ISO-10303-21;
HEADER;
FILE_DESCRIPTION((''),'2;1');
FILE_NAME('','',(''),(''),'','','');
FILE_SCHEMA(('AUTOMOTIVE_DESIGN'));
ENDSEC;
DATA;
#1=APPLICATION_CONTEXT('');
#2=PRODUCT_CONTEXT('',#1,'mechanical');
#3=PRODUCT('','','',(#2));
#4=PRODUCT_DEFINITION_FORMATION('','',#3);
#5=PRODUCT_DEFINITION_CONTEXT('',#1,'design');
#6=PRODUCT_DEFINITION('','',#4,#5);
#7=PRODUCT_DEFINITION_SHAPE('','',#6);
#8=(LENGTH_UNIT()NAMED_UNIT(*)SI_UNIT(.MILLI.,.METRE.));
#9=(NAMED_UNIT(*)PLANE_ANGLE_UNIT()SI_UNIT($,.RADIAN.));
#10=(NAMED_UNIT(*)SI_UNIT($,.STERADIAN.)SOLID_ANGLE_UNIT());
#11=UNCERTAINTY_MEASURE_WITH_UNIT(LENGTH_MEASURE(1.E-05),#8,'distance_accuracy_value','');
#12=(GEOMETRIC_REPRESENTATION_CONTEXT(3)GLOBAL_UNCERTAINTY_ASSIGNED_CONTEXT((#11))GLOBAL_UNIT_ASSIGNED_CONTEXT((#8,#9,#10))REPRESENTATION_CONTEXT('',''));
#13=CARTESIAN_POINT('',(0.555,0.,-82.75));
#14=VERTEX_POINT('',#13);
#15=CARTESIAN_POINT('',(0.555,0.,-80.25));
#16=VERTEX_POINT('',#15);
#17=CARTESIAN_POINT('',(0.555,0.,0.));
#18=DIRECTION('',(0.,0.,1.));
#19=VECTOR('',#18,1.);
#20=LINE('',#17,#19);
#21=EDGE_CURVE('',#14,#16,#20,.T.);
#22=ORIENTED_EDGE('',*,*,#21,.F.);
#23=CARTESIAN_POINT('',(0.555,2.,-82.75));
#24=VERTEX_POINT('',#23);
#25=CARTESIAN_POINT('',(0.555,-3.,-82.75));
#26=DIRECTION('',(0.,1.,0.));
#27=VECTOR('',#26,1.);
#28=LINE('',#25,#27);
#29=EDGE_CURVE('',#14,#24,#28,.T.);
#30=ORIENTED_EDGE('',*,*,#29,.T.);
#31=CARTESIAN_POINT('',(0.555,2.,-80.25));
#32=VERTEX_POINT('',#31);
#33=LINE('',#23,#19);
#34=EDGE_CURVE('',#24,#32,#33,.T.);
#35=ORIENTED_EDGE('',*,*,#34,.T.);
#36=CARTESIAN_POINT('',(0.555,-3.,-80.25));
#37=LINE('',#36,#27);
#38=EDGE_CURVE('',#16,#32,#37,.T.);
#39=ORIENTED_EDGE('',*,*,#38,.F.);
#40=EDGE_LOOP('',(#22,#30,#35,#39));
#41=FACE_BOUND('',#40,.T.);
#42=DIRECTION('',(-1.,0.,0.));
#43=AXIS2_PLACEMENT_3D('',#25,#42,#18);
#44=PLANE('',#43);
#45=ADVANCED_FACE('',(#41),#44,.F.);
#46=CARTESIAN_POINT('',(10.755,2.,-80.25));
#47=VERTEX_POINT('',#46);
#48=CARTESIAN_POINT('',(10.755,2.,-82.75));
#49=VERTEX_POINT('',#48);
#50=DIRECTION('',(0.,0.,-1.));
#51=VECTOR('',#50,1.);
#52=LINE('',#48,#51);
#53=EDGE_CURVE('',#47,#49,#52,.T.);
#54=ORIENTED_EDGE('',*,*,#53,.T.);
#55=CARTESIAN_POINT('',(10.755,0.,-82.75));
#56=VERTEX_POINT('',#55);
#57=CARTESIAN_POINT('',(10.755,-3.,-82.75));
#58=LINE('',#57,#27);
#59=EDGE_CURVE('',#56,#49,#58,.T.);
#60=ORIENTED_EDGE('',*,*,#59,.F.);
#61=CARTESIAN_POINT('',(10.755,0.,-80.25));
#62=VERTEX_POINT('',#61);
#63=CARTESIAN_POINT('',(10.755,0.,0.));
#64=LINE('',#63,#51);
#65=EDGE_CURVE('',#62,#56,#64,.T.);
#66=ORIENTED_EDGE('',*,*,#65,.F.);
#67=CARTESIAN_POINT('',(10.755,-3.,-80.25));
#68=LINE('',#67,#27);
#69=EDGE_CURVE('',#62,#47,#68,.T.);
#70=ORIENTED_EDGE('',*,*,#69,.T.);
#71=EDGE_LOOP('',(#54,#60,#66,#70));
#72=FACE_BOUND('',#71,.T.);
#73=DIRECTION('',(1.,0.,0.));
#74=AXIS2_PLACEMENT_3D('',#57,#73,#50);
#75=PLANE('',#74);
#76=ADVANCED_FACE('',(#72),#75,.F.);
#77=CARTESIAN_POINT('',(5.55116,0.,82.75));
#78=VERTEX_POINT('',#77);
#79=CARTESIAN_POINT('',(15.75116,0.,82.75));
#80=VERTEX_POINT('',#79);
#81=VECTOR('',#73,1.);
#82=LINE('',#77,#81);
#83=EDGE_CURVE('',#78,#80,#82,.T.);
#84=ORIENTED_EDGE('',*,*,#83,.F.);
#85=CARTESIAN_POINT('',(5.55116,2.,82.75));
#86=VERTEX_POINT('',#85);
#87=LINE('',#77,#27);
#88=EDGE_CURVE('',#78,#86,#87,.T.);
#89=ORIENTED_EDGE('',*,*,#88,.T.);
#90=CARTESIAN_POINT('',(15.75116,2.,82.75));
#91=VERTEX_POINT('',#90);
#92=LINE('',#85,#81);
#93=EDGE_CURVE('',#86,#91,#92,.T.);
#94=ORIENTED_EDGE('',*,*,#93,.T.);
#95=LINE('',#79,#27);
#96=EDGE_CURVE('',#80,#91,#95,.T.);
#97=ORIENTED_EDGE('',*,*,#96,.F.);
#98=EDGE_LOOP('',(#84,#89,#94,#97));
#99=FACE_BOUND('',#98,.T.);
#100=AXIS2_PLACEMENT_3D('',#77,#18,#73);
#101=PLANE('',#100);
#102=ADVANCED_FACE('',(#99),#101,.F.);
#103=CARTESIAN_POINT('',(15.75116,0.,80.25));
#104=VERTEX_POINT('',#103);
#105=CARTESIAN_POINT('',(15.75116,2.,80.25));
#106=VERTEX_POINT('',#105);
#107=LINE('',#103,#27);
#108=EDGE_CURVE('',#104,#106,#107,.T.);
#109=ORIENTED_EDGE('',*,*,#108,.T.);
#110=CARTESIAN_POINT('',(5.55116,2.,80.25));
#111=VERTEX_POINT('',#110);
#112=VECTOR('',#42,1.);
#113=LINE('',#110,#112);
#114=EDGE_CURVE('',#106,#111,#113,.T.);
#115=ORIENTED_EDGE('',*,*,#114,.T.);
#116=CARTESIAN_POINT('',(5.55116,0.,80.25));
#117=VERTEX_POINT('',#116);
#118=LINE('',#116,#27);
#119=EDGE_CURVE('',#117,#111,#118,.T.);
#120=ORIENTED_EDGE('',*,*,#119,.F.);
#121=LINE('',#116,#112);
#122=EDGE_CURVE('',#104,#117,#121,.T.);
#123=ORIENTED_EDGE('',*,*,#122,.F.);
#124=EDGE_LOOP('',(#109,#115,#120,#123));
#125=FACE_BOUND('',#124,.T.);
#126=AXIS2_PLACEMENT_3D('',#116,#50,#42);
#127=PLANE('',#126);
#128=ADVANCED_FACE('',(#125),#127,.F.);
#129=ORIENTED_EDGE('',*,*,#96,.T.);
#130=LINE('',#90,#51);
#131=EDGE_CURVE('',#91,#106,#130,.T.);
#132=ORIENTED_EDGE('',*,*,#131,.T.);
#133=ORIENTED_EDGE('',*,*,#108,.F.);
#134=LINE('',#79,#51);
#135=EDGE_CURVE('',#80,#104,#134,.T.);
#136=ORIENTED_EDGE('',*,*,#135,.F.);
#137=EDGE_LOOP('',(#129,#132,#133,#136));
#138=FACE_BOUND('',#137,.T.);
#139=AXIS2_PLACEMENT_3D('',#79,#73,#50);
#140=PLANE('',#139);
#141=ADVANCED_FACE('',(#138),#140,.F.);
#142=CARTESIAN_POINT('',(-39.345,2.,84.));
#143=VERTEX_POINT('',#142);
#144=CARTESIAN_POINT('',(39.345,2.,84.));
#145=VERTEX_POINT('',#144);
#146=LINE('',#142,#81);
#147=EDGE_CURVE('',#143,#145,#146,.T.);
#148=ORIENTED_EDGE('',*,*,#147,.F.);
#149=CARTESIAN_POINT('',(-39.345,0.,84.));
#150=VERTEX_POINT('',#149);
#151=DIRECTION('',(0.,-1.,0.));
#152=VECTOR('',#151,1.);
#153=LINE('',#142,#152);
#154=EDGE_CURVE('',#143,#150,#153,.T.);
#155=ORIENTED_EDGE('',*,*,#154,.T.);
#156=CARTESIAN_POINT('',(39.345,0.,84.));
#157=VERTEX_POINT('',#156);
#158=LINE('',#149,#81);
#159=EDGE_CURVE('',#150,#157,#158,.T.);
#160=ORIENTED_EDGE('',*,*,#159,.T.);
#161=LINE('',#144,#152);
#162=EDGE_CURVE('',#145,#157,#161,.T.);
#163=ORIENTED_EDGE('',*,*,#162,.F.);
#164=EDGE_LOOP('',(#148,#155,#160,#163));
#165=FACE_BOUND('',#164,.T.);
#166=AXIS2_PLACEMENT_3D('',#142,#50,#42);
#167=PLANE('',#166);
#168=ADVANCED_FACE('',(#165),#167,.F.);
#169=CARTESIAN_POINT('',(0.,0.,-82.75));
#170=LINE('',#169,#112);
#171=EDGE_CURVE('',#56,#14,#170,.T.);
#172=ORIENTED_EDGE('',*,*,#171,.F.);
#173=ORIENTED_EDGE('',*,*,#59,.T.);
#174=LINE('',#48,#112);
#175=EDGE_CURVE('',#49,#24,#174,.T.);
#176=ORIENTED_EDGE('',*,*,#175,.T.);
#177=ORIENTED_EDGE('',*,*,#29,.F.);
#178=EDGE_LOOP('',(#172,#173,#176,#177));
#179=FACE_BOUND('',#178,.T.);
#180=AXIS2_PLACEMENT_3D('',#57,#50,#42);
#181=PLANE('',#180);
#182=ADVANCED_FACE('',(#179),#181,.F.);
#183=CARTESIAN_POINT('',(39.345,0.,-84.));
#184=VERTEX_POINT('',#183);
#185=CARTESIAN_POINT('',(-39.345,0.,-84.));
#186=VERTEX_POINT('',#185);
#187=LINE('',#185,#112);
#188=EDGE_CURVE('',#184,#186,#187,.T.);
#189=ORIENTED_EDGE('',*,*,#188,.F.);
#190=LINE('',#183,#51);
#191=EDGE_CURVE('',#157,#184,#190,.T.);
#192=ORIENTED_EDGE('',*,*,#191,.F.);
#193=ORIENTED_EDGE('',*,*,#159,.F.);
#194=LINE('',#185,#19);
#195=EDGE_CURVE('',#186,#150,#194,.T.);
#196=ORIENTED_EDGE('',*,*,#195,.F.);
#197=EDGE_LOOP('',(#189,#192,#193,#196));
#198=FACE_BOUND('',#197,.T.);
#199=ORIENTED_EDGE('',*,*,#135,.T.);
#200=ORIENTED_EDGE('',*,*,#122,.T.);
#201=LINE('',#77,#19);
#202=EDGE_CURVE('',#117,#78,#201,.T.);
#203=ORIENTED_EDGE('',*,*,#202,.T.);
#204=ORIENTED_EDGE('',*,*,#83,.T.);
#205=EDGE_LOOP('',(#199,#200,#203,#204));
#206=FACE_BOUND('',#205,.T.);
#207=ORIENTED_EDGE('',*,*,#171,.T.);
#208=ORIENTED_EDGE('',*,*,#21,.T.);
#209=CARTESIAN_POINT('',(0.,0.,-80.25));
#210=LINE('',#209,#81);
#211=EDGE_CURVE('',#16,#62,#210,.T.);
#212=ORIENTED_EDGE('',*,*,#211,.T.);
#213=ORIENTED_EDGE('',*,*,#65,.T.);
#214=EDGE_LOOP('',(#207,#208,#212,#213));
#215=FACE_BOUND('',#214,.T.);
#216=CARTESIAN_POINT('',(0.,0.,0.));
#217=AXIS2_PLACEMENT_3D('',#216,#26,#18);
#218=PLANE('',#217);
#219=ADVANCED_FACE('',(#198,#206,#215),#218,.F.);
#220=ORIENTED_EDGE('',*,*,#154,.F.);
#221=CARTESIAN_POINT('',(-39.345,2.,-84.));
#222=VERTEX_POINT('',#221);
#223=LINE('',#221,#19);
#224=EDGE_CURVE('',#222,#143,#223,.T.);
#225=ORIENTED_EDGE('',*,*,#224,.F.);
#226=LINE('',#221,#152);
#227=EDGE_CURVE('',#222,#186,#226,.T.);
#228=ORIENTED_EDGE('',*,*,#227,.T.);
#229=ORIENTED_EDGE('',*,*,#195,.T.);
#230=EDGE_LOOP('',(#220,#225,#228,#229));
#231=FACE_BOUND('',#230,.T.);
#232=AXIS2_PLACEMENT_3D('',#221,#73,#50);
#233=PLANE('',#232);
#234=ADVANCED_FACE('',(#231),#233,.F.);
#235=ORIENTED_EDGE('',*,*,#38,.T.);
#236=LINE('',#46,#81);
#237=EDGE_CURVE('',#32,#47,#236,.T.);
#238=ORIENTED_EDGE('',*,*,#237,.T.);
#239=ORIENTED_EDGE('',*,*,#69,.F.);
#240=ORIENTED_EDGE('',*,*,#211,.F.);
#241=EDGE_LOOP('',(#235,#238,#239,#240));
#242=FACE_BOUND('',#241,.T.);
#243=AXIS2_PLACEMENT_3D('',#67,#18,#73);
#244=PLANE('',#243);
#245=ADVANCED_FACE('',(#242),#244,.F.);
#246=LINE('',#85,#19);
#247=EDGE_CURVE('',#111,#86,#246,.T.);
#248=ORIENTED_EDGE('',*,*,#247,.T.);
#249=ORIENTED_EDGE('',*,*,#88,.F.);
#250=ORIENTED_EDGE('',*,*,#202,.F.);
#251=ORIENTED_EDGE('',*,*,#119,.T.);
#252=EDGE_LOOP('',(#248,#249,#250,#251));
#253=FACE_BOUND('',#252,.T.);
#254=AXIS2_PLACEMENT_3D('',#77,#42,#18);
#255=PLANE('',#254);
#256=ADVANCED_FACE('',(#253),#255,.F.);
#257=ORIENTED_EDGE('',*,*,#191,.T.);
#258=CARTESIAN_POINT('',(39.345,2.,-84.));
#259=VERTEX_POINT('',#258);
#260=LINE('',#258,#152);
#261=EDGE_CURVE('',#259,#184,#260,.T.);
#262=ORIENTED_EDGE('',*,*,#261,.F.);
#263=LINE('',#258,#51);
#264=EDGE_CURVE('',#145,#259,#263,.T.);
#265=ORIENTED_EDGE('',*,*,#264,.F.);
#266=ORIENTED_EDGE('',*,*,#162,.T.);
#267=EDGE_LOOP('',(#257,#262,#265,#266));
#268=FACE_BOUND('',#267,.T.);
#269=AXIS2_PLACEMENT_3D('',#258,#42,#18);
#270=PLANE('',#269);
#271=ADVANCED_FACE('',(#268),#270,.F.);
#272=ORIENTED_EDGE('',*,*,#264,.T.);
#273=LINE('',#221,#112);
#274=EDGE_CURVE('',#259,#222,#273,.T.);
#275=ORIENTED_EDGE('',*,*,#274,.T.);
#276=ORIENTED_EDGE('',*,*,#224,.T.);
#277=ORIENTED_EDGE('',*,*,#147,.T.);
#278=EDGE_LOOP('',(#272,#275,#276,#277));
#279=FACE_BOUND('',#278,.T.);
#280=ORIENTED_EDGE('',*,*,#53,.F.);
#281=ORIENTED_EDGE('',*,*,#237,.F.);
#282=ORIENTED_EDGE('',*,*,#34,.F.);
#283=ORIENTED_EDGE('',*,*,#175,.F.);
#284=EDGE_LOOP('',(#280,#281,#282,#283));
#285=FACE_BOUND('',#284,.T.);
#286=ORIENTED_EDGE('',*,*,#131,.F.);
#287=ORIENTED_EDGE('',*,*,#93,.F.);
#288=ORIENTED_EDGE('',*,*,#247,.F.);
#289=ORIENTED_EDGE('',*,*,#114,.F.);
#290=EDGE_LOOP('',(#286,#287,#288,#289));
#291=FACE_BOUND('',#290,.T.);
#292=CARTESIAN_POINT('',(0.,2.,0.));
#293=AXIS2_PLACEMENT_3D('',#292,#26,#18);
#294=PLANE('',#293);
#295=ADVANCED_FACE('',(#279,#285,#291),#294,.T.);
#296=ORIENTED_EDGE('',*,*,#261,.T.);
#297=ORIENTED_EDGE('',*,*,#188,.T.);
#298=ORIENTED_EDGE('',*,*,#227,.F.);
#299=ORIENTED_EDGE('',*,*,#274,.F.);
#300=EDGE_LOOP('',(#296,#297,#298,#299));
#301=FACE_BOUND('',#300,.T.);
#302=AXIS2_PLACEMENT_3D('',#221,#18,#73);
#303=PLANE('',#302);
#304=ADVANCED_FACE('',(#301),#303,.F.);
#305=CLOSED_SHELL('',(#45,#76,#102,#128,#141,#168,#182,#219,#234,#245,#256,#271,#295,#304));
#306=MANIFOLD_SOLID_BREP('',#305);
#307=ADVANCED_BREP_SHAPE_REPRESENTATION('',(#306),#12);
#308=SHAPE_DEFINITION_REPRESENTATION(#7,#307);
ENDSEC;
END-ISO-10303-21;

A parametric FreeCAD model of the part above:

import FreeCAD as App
import Part
import Sketcher

V = App.Vector

doc = App.newDocument("Part")
body = doc.addObject("PartDesign::Body", "Body")

sketch1 = body.newObject("Sketcher::SketchObject", "Sketch")
sketch1.AttachmentSupport = (doc.getObject("XZ_Plane"), [""])
sketch1.MapMode = "FlatFace"
sketch1.addGeometry(Part.LineSegment(V(-39, -84, 0), V(-39, 84, 0)), False)
sketch1.addGeometry(Part.LineSegment(V(-39, 84, 0), V(39, 84, 0)), False)
sketch1.addGeometry(Part.LineSegment(V(39, 84, 0), V(39, -84, 0)), False)
sketch1.addGeometry(Part.LineSegment(V(39, -84, 0), V(-39, -84, 0)), False)
sketch1.addConstraint(Sketcher.Constraint("Coincident", 0, 2, 1, 1))
sketch1.addConstraint(Sketcher.Constraint("Coincident", 1, 2, 2, 1))
sketch1.addConstraint(Sketcher.Constraint("Coincident", 2, 2, 3, 1))
sketch1.addConstraint(Sketcher.Constraint("Coincident", 3, 2, 0, 1))
sketch1.addConstraint(Sketcher.Constraint("Vertical", 0))
sketch1.addConstraint(Sketcher.Constraint("Horizontal", 1))
sketch1.addConstraint(Sketcher.Constraint("Vertical", 2))
sketch1.addConstraint(Sketcher.Constraint("Horizontal", 3))
sketch1.addConstraint(Sketcher.Constraint("Symmetric", 0, 2, 2, 2, -1, 1))
sketch1.addConstraint(Sketcher.Constraint("DistanceY", 0, 1, 0, 2, 168.0))
sketch1.addConstraint(Sketcher.Constraint("DistanceX", 1, 1, 1, 2, 78.69))
pad1 = body.newObject("PartDesign::Pad", "Pad")
pad1.Profile = sketch1
pad1.Length = 2
pad1.Reversed = True

sketch2 = body.newObject("Sketcher::SketchObject", "Sketch001")
sketch2.AttachmentSupport = (doc.getObject("XZ_Plane"), [""])
sketch2.MapMode = "FlatFace"
sketch2.AttachmentOffset = App.Placement(V(0, 0, -2), App.Rotation())
sketch2.addGeometry(Part.LineSegment(V(0.6, -82.8, 0), V(0.6, -80.2, 0)), False)
sketch2.addGeometry(Part.LineSegment(V(0.6, -80.2, 0), V(10.8, -80.2, 0)), False)
sketch2.addGeometry(Part.LineSegment(V(10.8, -80.2, 0), V(10.8, -82.8, 0)), False)
sketch2.addGeometry(Part.LineSegment(V(10.8, -82.8, 0), V(0.6, -82.8, 0)), False)
sketch2.addConstraint(Sketcher.Constraint("Coincident", 0, 2, 1, 1))
sketch2.addConstraint(Sketcher.Constraint("Coincident", 1, 2, 2, 1))
sketch2.addConstraint(Sketcher.Constraint("Coincident", 2, 2, 3, 1))
sketch2.addConstraint(Sketcher.Constraint("Coincident", 3, 2, 0, 1))
sketch2.addConstraint(Sketcher.Constraint("Vertical", 0))
sketch2.addConstraint(Sketcher.Constraint("Horizontal", 1))
sketch2.addConstraint(Sketcher.Constraint("Vertical", 2))
sketch2.addConstraint(Sketcher.Constraint("Horizontal", 3))
sketch2.addConstraint(Sketcher.Constraint("DistanceX", 1, 1, 1, 2, 10.2))
sketch2.addConstraint(Sketcher.Constraint("DistanceY", 0, 1, 0, 2, 2.5))
sketch2.addConstraint(Sketcher.Constraint("DistanceY", 0, 2, -1, 1, 80.25))
sketch2.addConstraint(Sketcher.Constraint("DistanceX", -1, 1, 0, 2, 0.555))
pocket1 = body.newObject("PartDesign::Pocket", "Pocket")
pocket1.Profile = sketch2
pocket1.Length = 5
pocket1.Reversed = True

sketch3 = body.newObject("Sketcher::SketchObject", "Sketch002")
sketch3.AttachmentSupport = (doc.getObject("XZ_Plane"), [""])
sketch3.MapMode = "FlatFace"
sketch3.AttachmentOffset = App.Placement(V(0, 0, -2), App.Rotation())
sketch3.addGeometry(Part.LineSegment(V(5.6, 80.2, 0), V(5.6, 82.8, 0)), False)
sketch3.addGeometry(Part.LineSegment(V(5.6, 82.8, 0), V(15.8, 82.8, 0)), False)
sketch3.addGeometry(Part.LineSegment(V(15.8, 82.8, 0), V(15.8, 80.2, 0)), False)
sketch3.addGeometry(Part.LineSegment(V(15.8, 80.2, 0), V(5.6, 80.2, 0)), False)
sketch3.addConstraint(Sketcher.Constraint("Coincident", 0, 2, 1, 1))
sketch3.addConstraint(Sketcher.Constraint("Coincident", 1, 2, 2, 1))
sketch3.addConstraint(Sketcher.Constraint("Coincident", 2, 2, 3, 1))
sketch3.addConstraint(Sketcher.Constraint("Coincident", 3, 2, 0, 1))
sketch3.addConstraint(Sketcher.Constraint("Vertical", 0))
sketch3.addConstraint(Sketcher.Constraint("Horizontal", 1))
sketch3.addConstraint(Sketcher.Constraint("Vertical", 2))
sketch3.addConstraint(Sketcher.Constraint("Horizontal", 3))
sketch3.addConstraint(Sketcher.Constraint("DistanceX", 1, 1, 1, 2, 10.2))
sketch3.addConstraint(Sketcher.Constraint("DistanceY", 0, 1, 0, 2, 2.5))
sketch3.addConstraint(Sketcher.Constraint("DistanceY", -1, 1, 0, 2, 82.75))
sketch3.addConstraint(Sketcher.Constraint("DistanceX", -1, 1, 0, 2, 5.55116))
pocket2 = body.newObject("PartDesign::Pocket", "Pocket001")
pocket2.Profile = sketch3
pocket2.Length = 2
pocket2.Reversed = True

doc.recompute()
